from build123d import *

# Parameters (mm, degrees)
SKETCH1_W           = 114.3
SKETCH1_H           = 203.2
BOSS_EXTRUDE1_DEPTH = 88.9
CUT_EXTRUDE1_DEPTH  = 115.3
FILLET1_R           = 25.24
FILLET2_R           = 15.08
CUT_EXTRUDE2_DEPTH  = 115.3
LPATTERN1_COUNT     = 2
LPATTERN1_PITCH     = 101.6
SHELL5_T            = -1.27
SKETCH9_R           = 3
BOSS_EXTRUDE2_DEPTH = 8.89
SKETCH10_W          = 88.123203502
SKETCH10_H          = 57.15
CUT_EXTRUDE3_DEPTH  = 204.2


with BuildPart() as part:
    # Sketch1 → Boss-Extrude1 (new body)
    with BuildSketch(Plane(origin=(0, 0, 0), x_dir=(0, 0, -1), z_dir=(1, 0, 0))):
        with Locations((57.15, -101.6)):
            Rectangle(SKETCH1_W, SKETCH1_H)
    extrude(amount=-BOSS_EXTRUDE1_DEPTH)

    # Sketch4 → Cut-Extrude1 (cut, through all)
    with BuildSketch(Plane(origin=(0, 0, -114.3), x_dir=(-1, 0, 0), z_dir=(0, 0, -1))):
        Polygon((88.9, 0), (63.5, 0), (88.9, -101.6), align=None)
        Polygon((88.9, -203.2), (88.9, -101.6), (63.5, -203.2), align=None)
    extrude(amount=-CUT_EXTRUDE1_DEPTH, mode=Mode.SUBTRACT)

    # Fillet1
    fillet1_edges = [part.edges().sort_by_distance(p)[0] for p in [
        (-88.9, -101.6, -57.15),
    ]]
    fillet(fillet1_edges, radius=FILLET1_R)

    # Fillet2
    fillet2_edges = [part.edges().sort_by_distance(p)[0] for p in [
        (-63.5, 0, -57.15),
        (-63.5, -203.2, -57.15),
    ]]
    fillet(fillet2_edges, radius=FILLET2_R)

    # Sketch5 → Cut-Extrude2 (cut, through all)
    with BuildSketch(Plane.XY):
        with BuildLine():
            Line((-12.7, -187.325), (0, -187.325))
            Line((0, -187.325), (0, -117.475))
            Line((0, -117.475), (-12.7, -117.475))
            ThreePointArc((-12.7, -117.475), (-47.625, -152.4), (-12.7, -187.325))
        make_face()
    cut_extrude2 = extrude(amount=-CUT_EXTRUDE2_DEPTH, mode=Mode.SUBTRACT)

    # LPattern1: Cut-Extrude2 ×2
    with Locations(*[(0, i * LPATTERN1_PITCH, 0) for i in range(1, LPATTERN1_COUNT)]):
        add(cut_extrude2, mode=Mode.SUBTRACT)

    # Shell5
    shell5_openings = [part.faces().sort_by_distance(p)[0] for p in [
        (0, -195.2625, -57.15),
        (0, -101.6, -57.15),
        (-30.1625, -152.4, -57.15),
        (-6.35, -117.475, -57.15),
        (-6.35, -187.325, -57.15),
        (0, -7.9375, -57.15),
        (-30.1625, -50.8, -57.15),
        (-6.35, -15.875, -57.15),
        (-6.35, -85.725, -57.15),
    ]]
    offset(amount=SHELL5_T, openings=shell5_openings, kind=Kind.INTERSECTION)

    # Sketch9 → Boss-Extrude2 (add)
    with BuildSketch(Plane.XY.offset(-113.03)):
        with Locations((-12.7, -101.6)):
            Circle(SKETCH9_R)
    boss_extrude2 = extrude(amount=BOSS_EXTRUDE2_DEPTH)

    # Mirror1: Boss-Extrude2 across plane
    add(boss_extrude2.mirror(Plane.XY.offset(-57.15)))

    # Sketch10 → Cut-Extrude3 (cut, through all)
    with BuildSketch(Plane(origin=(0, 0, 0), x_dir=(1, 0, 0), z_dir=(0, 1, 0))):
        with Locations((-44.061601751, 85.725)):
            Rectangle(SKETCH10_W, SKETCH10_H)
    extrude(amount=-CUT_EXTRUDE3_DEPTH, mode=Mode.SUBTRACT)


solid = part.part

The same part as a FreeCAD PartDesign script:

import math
import FreeCAD as App
import Part
import Sketcher
from FreeCAD import Vector
Q = App.Units.Quantity


def edges_at(feature, points):
    """Names of the edges that pass closest to the given points."""
    edges = feature.Shape.Edges
    near = lambda p: min(range(len(edges)), key=lambda i: edges[i].distToShape(Part.Vertex(*p))[0])
    return sorted({f"Edge{near(p) + 1}" for p in points})


def faces_at(feature, points):
    """Names of the faces that lie closest to the given points."""
    faces = feature.Shape.Faces
    near = lambda p: min(range(len(faces)), key=lambda i: faces[i].distToShape(Part.Vertex(*p))[0])
    return sorted({f"Face{near(p) + 1}" for p in points})


def add_polygon(sketch, points):
    """Adds a closed chain of lines whose ends are joined by coincident constraints."""
    first, n = sketch.GeometryCount, len(points)
    for a, b in zip(points, points[1:] + points[:1]):
        sketch.addGeometry(Part.LineSegment(App.Vector(*a, 0), App.Vector(*b, 0)), False)
    for i in range(n):
        sketch.addConstraint(Sketcher.Constraint("Coincident", first + i, 2, first + (i + 1) % n, 1))

doc = App.newDocument("Part")
params = doc.addObject("Spreadsheet::Sheet", "Params")
for row, (alias, value) in enumerate([
    ("sketch1_width", "8 in"),
    ("sketch1_height", "4.5 in"),
    ("pad1_length", "3.5 in"),
    ("sketch2_width", "1 in"),
    ("sketch2_height", "4 in"),
    ("fillet_radius", "25.24 mm"),
    ("fillet2_radius", "15.08 mm"),
    ("sketch3_width", "0.5 in"),
    ("sketch3_radius", "1.375 in"),
    ("linearpattern_pitch", "4 in"),
    ("thickness_wall", "0.05 in"),
    ("pad2_length", "0.35 in"),
    ("sketch5_height", "2.25 in"),
], start=1):
    params.set(f"A{row}", alias)
    params.set(f"B{row}", "=" + value)
    params.setAlias(f"B{row}", alias)

body = doc.addObject("PartDesign::Body", "Body")

sketch1 = body.newObject("Sketcher::SketchObject", "Sketch")
sketch1.AttachmentSupport = (doc.getObject("YZ_Plane"), [""])
sketch1.MapMode = "FlatFace"
add_polygon(sketch1, [(0, 0), (-203, 0), (-203, -114), (0, -114)])
sketch1.addConstraint([
    Sketcher.Constraint("Horizontal", 0),
    Sketcher.Constraint("Vertical", 1),
    Sketcher.Constraint("Horizontal", 2),
    Sketcher.Constraint("Vertical", 3),
    Sketcher.Constraint("Coincident", 3, 2, -1, 1),
    Sketcher.Constraint("DistanceX", 0, 2, 0, 1, Q("8 in")),
    Sketcher.Constraint("DistanceY", 1, 2, 1, 1, Q("4.5 in")),
])
sketch1.setExpression("Constraints[9]", "Params.sketch1_width")
sketch1.setExpression("Constraints[10]", "Params.sketch1_height")
pad1 = body.newObject("PartDesign::Pad", "Pad")
pad1.Profile = sketch1
pad1.setExpression("Length", "Params.pad1_length")
pad1.Reversed = True

sketch2 = body.newObject("Sketcher::SketchObject", "Sketch001")
sketch2.AttachmentSupport = (doc.getObject("XY_Plane"), [""])
sketch2.MapMode = "FlatFace"
sketch2.AttachmentOffset = App.Placement(Vector(0, 0, -4.5 * 25.4), App.Rotation())
add_polygon(sketch2, [(-89, 0), (-64, 0), (-89, -102)])
add_polygon(sketch2, [(-89, -203), (-89, -102), (-64, -203)])
sketch2.addConstraint([
    Sketcher.Constraint("Horizontal", 0),
    Sketcher.Constraint("Vertical", 2),
    Sketcher.Constraint("Vertical", 3),
    Sketcher.Constraint("Horizontal", 5),
    Sketcher.Constraint("Coincident", 3, 2, 1, 2),
    Sketcher.Constraint("PointOnObject", 0, 2, -1),
    Sketcher.Constraint("Vertical", 0, 2, 4, 2),
    Sketcher.Constraint("Equal", 2, 3),
    Sketcher.Constraint("DistanceX", 0, 1, 0, 2, Q("1 in")),
    Sketcher.Constraint("DistanceY", 2, 1, 2, 2, Q("4 in")),
    Sketcher.Constraint("DistanceX", 0, 2, -1, 1, Q("2.5 in")),
])
sketch2.setExpression("Constraints[14]", "Params.sketch2_width")
sketch2.setExpression("Constraints[15]", "Params.sketch2_height")
pocket1 = body.newObject("PartDesign::Pocket", "Pocket")
pocket1.Profile = sketch2
pocket1.Type = "ThroughAll"
pocket1.Reversed = True
doc.recompute()

fillet = body.newObject("PartDesign::Fillet", "Fillet")
fillet.Base = (pocket1, edges_at(pocket1, [(-88.9, -101.6, -57.15)]))
fillet.setExpression("Radius", "Params.fillet_radius")
doc.recompute()

fillet2 = body.newObject("PartDesign::Fillet", "Fillet001")
fillet2.Base = (fillet, edges_at(fillet, [(-63.5, 0, -57.15), (-63.5, -203.2, -57.15)]))
fillet2.setExpression("Radius", "Params.fillet2_radius")

sketch3 = body.newObject("Sketcher::SketchObject", "Sketch002")
sketch3.AttachmentSupport = (doc.getObject("XY_Plane"), [""])
sketch3.MapMode = "FlatFace"
sketch3.addGeometry([
    Part.LineSegment(Vector(-13, -187, 0), Vector(0, -187, 0)),
    Part.LineSegment(Vector(0, -187, 0), Vector(0, -117, 0)),
    Part.LineSegment(Vector(0, -117, 0), Vector(-13, -117, 0)),
    Part.ArcOfCircle(Part.Circle(Vector(-13, -152, 0), Vector(0, 0, 1), 35), math.radians(90), math.radians(270)),
], False)
sketch3.addConstraint([
    Sketcher.Constraint("Coincident", 0, 2, 1, 1),
    Sketcher.Constraint("Coincident", 1, 2, 2, 1),
    Sketcher.Constraint("Tangent", 2, 2, 3, 1),
    Sketcher.Constraint("Tangent", 3, 2, 0, 1),
    Sketcher.Constraint("Horizontal", 0),
    Sketcher.Constraint("Vertical", 1),
    Sketcher.Constraint("Horizontal", 2),
    Sketcher.Constraint("PointOnObject", 0, 2, -2),
    Sketcher.Constraint("DistanceX", 0, 1, 0, 2, Q("0.5 in")),
    Sketcher.Constraint("DistanceY", 3, 3, -1, 1, Q("6 in")),
    Sketcher.Constraint("Radius", 3, Q("1.375 in")),
])
sketch3.setExpression("Constraints[8]", "Params.sketch3_width")
sketch3.setExpression("Constraints[10]", "Params.sketch3_radius")
pocket2 = body.newObject("PartDesign::Pocket", "Pocket001")
pocket2.Profile = sketch3
pocket2.Type = "ThroughAll"
doc.recompute()

linearpattern = body.newObject("PartDesign::LinearPattern", "LinearPattern")
linearpattern.Originals = [pocket2]
linearpattern.Direction = (doc.getObject("Y_Axis"), [""])
linearpattern.Mode = "offset"
linearpattern.setExpression("Offset", "Params.linearpattern_pitch")
linearpattern.Occurrences = 2
body.Tip = linearpattern
doc.recompute()

thickness = body.newObject("PartDesign::Thickness", "Thickness")
thickness.Base = (linearpattern, faces_at(linearpattern, [
    (0, -195.262, -57.15),
    (0, -101.6, -57.15),
    (-47.625, -152.4, -57.15),
    (-6.35, -117.475, -57.15),
    (-6.35, -187.325, -57.15),
    (0, -7.938, -57.15),
    (-47.625, -50.8, -57.15),
    (-6.35, -15.875, -57.15),
    (-6.35, -85.725, -57.15),
]))
thickness.setExpression("Value", "Params.thickness_wall")
thickness.Reversed = True
thickness.Join = "Intersection"

sketch4 = body.newObject("Sketcher::SketchObject", "Sketch003")
sketch4.AttachmentSupport = (doc.getObject("XY_Plane"), [""])
sketch4.MapMode = "FlatFace"
sketch4.AttachmentOffset = App.Placement(Vector(0, 0, -4.45 * 25.4), App.Rotation())
sketch4.addGeometry(Part.Circle(Vector(-12.7, -101.6, 0), Vector(0, 0, 1), 3), False)
sketch4.addConstraint([
    Sketcher.Constraint("DistanceY", 0, 3, -1, 1, Q("4 in")),
    Sketcher.Constraint("DistanceX", 0, 3, -1, 1, Q("0.5 in")),
    Sketcher.Constraint("Diameter", 0, 6.0),
])
pad2 = body.newObject("PartDesign::Pad", "Pad001")
pad2.Profile = sketch4
pad2.setExpression("Length", "Params.pad2_length")
doc.recompute()

datumplane = body.newObject("PartDesign::Plane", "DatumPlane")
datumplane.AttachmentSupport = (doc.getObject("XY_Plane"), [""])
datumplane.MapMode = "FlatFace"
datumplane.AttachmentOffset = App.Placement(Vector(0, 0, -2.25 * 25.4), App.Rotation())
mirrored = body.newObject("PartDesign::Mirrored", "Mirrored")
mirrored.Originals = [pad2]
mirrored.MirrorPlane = (datumplane, [""])
body.Tip = mirrored

sketch5 = body.newObject("Sketcher::SketchObject", "Sketch004")
sketch5.AttachmentSupport = (doc.getObject("XZ_Plane"), [""])
sketch5.MapMode = "FlatFace"
add_polygon(sketch5, [(-88, -114), (-88, -57), (0, -57), (0, -114)])
sketch5.addConstraint([
    Sketcher.Constraint("Vertical", 0),
    Sketcher.Constraint("Horizontal", 1),
    Sketcher.Constraint("Vertical", 2),
    Sketcher.Constraint("Horizontal", 3),
    Sketcher.Constraint("PointOnObject", 1, 2, -2),
    Sketcher.Constraint("DistanceY", 0, 1, 0, 2, Q("2.25 in")),
    Sketcher.Constraint("DistanceY", 2, 2, -1, 1, Q("4.5 in")),
    Sketcher.Constraint("DistanceX", 1, 1, 1, 2, 88.123204),
])
sketch5.setExpression("Constraints[9]", "Params.sketch5_height")
pocket3 = body.newObject("PartDesign::Pocket", "Pocket002")
pocket3.Profile = sketch5
pocket3.Type = "ThroughAll"
pocket3.Reversed = True

doc.recompute()
